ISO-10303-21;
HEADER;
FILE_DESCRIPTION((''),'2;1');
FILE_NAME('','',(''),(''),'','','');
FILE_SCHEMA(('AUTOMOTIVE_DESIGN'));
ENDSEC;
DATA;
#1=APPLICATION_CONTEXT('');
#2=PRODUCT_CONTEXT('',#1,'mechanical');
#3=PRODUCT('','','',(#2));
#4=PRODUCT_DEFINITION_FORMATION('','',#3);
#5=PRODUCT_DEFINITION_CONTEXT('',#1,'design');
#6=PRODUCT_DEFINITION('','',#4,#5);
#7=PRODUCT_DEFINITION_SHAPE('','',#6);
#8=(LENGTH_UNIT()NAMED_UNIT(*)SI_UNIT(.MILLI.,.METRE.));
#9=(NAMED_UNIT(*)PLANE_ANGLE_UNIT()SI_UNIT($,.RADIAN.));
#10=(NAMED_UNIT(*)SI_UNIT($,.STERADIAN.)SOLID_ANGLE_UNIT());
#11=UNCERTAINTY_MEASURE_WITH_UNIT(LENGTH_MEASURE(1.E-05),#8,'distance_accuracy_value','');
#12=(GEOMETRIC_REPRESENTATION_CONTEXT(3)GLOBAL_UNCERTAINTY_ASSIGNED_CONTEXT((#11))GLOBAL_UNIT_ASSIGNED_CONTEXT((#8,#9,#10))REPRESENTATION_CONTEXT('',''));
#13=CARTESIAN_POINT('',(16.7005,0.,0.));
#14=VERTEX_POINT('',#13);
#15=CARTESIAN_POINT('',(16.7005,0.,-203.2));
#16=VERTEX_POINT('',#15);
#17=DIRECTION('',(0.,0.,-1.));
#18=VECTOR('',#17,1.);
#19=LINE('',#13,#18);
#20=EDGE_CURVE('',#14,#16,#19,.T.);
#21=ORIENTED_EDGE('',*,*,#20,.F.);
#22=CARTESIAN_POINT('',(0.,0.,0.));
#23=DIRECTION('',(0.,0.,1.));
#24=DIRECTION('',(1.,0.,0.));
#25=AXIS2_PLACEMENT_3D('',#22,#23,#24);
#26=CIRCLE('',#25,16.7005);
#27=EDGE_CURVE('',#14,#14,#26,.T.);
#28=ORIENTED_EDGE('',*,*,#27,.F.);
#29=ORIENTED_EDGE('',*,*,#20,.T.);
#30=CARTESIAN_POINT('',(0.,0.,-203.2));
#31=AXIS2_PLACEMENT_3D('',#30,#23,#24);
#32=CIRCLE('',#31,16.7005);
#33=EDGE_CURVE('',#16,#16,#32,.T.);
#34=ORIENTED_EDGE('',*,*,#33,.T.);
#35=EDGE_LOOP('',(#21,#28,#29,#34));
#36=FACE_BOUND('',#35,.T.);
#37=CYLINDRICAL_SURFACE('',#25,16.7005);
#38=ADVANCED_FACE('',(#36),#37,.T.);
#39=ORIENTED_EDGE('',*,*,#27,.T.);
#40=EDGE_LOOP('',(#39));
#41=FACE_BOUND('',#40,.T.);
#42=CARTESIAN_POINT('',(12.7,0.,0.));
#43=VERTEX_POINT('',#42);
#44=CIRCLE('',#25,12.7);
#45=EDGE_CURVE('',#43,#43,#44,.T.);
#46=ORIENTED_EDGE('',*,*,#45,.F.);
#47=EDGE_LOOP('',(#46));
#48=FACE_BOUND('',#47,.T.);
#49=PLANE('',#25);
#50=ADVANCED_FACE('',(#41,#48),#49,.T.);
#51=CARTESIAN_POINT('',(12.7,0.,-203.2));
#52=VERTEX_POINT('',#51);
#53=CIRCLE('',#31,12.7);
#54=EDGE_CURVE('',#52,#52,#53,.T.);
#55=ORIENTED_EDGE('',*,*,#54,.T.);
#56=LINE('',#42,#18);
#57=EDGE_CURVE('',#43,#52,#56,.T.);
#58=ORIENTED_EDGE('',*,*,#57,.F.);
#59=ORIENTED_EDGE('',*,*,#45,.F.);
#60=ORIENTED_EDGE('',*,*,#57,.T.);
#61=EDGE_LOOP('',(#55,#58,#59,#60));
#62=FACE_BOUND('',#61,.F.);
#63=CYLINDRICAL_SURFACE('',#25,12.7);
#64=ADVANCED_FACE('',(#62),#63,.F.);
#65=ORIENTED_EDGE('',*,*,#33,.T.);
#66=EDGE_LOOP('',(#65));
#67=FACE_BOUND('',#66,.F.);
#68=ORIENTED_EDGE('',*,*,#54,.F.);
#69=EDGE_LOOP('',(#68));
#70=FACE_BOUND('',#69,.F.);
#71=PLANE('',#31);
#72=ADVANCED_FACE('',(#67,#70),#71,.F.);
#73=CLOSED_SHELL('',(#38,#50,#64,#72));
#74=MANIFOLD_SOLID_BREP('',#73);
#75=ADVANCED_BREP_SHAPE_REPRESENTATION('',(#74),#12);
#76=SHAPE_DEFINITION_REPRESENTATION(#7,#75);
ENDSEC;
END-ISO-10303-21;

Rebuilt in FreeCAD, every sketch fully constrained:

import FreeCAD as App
import Part
import Sketcher
Q = App.Units.Quantity

doc = App.newDocument("Part")
body = doc.addObject("PartDesign::Body", "Body")

# Sketch on XY plane
sketch1 = doc.addObject("Sketcher::SketchObject", "Sketch")
body.addObject(sketch1)
sketch1.AttachmentSupport = (doc.XY_Plane, [""])
sketch1.MapMode = "FlatFace"
sketch1.addGeometry([
    Part.Circle(App.Vector(0, 0, 0), App.Vector(0, 0, 1), 17),
    Part.Circle(App.Vector(0, 0, 0), App.Vector(0, 0, 1), 13),
], False)
sketch1.addConstraint([
    Sketcher.Constraint("Coincident", 0, 3, -1, 1),
    Sketcher.Constraint("Coincident", 1, 3, -1, 1),
    Sketcher.Constraint("Diameter", 1, Q("1 in")),
    Sketcher.Constraint("Diameter", 0, Q("1.315 in")),
])
pad1 = doc.addObject("PartDesign::Pad", "Pad")
body.addObject(pad1)
pad1.Profile = sketch1
pad1.Length = Q("8 in")
pad1.Reversed = True

doc.recompute()
